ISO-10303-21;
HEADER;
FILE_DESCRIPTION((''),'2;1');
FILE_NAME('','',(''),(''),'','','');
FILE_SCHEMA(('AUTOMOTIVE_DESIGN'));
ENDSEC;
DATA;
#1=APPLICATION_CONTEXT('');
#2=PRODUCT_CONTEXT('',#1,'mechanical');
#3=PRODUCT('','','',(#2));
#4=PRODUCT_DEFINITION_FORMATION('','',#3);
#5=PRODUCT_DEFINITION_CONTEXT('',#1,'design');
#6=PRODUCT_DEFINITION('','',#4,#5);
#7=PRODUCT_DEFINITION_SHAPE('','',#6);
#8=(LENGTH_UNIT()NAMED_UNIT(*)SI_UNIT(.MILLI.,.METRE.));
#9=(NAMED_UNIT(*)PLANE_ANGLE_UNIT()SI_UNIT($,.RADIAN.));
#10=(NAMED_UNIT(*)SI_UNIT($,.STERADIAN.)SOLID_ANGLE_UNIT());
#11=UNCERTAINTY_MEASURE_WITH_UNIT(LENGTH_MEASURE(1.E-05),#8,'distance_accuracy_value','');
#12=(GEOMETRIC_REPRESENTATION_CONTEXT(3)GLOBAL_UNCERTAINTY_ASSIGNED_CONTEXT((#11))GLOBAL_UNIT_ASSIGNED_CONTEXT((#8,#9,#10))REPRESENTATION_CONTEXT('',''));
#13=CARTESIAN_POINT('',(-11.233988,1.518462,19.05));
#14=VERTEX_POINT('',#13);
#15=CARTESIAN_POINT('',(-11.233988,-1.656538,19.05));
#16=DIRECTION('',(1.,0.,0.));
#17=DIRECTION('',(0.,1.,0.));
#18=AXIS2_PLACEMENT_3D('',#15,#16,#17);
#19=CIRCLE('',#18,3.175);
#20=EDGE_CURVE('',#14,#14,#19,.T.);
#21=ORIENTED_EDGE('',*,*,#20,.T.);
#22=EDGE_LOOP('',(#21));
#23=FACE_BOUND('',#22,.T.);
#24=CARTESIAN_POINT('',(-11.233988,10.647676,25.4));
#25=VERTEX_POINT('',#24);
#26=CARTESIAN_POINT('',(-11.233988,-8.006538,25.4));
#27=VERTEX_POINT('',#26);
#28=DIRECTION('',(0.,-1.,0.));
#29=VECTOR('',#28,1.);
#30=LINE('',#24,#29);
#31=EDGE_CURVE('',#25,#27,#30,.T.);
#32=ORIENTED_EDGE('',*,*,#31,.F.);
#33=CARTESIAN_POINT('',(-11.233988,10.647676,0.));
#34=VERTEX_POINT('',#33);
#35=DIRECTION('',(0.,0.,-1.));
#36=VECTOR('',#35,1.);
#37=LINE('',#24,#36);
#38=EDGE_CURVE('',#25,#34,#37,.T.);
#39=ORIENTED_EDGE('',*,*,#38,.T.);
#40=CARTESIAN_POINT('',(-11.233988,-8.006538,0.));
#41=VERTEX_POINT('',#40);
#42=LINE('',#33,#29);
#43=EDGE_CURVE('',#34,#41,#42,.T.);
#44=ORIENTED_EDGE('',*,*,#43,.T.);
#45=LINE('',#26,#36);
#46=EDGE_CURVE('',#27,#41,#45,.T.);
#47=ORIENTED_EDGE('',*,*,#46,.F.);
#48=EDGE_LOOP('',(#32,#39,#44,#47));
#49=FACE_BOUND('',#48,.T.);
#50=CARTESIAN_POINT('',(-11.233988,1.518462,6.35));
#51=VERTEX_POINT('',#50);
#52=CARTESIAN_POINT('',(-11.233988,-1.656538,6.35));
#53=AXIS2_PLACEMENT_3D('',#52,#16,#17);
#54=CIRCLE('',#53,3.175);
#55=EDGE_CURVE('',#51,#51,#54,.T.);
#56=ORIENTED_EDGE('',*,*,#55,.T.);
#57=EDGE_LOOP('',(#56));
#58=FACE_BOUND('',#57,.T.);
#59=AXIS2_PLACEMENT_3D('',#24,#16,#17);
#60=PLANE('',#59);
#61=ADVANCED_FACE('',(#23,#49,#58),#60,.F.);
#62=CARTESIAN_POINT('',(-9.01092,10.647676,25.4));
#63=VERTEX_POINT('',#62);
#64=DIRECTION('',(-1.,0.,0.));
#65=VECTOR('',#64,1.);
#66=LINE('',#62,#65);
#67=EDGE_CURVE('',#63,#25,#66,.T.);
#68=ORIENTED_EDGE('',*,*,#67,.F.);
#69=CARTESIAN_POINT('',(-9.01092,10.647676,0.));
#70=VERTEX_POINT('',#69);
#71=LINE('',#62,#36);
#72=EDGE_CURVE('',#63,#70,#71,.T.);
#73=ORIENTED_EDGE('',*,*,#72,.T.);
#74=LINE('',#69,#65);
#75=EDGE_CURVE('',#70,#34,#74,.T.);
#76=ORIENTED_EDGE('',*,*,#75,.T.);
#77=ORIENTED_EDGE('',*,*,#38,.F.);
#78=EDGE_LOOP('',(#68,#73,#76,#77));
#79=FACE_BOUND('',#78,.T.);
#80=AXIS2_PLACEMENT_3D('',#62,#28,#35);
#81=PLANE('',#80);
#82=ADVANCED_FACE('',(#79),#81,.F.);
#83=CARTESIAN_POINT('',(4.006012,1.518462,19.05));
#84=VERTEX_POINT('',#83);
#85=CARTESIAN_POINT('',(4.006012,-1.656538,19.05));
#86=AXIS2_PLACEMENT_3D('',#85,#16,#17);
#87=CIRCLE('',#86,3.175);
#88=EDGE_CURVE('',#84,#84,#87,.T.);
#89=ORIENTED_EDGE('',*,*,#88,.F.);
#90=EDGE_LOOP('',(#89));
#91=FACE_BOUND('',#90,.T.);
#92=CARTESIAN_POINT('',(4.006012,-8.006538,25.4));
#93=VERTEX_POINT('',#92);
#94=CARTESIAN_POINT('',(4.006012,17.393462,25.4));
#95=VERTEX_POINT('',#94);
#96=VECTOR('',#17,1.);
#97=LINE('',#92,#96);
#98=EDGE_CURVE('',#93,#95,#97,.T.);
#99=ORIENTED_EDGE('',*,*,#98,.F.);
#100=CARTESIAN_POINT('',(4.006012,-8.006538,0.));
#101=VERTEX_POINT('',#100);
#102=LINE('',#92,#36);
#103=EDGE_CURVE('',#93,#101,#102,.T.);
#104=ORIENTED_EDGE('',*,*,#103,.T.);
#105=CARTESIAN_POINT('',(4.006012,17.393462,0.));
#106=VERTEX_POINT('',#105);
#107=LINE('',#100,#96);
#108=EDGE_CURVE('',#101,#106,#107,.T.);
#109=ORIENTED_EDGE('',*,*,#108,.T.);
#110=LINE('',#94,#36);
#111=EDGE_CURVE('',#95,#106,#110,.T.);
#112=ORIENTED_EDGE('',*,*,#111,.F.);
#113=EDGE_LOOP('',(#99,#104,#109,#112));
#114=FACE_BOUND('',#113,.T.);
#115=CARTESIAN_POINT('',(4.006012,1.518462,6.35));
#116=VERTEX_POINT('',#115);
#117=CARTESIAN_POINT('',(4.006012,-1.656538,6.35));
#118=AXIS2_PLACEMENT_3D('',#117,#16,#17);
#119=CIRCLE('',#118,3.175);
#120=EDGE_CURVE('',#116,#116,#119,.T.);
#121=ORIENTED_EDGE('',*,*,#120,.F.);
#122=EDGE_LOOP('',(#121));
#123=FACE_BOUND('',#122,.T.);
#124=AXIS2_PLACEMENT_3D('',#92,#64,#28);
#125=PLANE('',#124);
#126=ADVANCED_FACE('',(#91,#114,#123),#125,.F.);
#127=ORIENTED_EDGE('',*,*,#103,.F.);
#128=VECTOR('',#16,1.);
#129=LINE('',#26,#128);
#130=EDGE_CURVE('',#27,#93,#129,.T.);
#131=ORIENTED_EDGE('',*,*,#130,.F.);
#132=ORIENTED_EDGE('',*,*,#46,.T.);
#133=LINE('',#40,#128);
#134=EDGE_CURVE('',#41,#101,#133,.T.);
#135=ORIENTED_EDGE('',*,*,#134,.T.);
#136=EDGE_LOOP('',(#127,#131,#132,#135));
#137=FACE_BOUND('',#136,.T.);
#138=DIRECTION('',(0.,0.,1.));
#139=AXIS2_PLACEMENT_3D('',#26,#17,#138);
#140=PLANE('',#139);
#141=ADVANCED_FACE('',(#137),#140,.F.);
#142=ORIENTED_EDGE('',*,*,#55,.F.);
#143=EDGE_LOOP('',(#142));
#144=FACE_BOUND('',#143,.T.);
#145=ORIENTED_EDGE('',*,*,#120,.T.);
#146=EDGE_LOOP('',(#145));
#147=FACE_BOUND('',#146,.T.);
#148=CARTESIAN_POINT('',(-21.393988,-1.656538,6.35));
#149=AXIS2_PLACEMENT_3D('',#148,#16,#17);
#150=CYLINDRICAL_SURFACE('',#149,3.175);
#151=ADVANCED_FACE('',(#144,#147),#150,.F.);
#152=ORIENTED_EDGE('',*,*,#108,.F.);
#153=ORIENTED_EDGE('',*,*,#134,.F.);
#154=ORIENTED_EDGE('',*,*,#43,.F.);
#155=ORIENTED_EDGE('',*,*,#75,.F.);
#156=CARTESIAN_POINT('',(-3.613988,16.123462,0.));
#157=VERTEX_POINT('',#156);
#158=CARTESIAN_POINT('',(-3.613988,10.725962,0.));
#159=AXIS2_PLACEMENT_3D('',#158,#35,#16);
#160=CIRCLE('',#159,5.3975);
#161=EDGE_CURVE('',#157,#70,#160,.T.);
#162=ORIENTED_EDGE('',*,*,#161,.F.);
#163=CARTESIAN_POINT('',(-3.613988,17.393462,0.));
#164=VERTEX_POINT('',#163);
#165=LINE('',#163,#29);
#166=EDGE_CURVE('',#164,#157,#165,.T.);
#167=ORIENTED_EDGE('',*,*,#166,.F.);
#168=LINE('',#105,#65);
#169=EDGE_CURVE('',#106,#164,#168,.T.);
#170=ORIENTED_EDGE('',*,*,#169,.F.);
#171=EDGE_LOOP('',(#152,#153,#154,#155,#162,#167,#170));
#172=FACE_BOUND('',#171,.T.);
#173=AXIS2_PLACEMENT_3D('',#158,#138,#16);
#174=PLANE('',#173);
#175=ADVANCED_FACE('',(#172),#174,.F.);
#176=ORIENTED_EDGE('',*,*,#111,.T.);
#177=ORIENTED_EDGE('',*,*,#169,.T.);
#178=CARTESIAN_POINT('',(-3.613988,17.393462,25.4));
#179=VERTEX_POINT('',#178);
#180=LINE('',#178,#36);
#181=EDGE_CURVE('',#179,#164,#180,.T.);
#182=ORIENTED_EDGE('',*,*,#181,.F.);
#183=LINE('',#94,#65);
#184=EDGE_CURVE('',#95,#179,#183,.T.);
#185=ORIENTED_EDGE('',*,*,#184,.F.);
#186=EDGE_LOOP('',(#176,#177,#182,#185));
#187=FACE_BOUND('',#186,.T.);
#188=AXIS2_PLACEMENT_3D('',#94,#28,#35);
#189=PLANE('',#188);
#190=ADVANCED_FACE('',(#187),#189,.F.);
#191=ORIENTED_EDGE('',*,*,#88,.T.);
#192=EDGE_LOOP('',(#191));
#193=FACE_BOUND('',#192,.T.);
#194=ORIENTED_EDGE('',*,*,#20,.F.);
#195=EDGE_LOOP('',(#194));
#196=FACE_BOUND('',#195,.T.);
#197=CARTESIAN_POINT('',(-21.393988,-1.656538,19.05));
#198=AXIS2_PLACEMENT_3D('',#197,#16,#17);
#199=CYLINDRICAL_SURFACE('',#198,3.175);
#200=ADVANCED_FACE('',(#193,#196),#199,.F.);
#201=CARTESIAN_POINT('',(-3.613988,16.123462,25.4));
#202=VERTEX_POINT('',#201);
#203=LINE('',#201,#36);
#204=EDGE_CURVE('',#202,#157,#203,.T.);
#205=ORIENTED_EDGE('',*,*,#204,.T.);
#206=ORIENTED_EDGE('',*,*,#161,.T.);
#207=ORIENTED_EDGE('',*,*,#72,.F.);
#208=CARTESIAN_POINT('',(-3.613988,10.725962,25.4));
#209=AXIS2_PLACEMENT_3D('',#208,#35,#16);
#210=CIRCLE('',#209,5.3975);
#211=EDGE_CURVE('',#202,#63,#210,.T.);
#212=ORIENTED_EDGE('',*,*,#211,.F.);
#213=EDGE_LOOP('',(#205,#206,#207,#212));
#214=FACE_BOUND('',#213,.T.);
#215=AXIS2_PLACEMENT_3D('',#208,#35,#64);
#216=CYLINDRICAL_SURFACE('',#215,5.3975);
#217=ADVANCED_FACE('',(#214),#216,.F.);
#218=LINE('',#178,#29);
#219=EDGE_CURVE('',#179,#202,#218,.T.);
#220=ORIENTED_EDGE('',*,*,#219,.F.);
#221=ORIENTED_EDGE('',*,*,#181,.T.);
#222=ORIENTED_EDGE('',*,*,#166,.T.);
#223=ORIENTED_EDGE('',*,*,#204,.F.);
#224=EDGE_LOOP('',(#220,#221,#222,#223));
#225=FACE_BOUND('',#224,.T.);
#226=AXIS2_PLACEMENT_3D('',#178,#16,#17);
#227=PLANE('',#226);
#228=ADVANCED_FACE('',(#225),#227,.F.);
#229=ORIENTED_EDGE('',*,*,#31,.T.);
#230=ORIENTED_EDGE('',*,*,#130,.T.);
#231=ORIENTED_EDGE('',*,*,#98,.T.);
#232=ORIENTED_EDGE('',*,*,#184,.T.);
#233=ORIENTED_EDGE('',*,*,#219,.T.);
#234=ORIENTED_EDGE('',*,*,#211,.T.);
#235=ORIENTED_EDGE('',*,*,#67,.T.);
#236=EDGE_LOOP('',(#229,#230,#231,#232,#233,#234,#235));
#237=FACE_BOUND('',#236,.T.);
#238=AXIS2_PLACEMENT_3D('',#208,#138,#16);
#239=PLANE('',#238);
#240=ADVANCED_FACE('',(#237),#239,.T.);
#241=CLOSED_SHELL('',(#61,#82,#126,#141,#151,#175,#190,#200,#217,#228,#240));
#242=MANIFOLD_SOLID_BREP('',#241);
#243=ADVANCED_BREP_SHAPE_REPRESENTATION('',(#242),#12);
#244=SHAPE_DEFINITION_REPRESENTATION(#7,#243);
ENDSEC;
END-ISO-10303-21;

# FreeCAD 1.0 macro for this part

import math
import FreeCAD as App
import Part
import Sketcher
from FreeCAD import Vector
Q = App.Units.Quantity

doc = App.newDocument("Part")
body = doc.addObject("PartDesign::Body", "Body")

sketch1 = body.newObject("Sketcher::SketchObject", "Sketch")
sketch1.AttachmentSupport = (doc.getObject("XY_Plane"), [""])
sketch1.MapMode = "FlatFace"
sketch1.addGeometry([
    Part.LineSegment(Vector(-9.01092, 10.647676, 0), Vector(-11.233988, 10.647676, 0)),
    Part.LineSegment(Vector(-11.233988, 10.647676, 0), Vector(-11.233988, -8.006538, 0)),
    Part.LineSegment(Vector(-11.233988, -8.006538, 0), Vector(4.006012, -8.006538, 0)),
    Part.LineSegment(Vector(4.006012, -8.006538, 0), Vector(4.006012, 17.393462, 0)),
    Part.LineSegment(Vector(4.006012, 17.393462, 0), Vector(-3.613988, 17.393462, 0)),
    Part.LineSegment(Vector(-3.613988, 17.393462, 0), Vector(-3.613988, 16.123462, 0)),
    Part.ArcOfCircle(Part.Circle(Vector(-3.613988, 10.725962, 0), Vector(0, 0, 1), 5.3975), math.radians(-179.16894), math.radians(90)),
], False)
sketch1.addConstraint([
    Sketcher.Constraint("Coincident", 0, 2, 1, 1),
    Sketcher.Constraint("Coincident", 1, 2, 2, 1),
    Sketcher.Constraint("Coincident", 2, 2, 3, 1),
    Sketcher.Constraint("Coincident", 3, 2, 4, 1),
    Sketcher.Constraint("Coincident", 4, 2, 5, 1),
    Sketcher.Constraint("Coincident", 5, 2, 6, 2),
    Sketcher.Constraint("Coincident", 6, 1, 0, 1),
    Sketcher.Constraint("Horizontal", 0),
    Sketcher.Constraint("Vertical", 1),
    Sketcher.Constraint("Horizontal", 2),
    Sketcher.Constraint("Vertical", 3),
    Sketcher.Constraint("Horizontal", 4),
    Sketcher.Constraint("Vertical", 5),
    Sketcher.Constraint("Vertical", 6, 3, 4, 2),
    Sketcher.Constraint("DistanceY", 3, 1, 3, 2, Q("1 in")),
    Sketcher.Constraint("DistanceX", 2, 1, 2, 2, Q("0.6 in")),
    Sketcher.Constraint("DistanceX", 4, 2, 4, 1, Q("0.3 in")),
    Sketcher.Constraint("DistanceY", 5, 2, 5, 1, Q("0.05 in")),
    Sketcher.Constraint("Radius", 6, Q("0.2125 in")),
    Sketcher.Constraint("DistanceY", -1, 1, 0, 2, Q("0.4191998 in")),
    Sketcher.Constraint("DistanceX", 0, 2, 0, 1, Q("2.223068 mm")),
    Sketcher.Constraint("DistanceX", 6, 1, -1, 1, Q("9.01092 mm")),
])
pad1 = body.newObject("PartDesign::Pad", "Pad")
pad1.Profile = sketch1
pad1.Length = Q("1 in")

sketch2 = body.newObject("Sketcher::SketchObject", "Sketch001")
sketch2.AttachmentSupport = (doc.getObject("YZ_Plane"), [""])
sketch2.MapMode = "FlatFace"
sketch2.AttachmentOffset = App.Placement(Vector(0, 0, 4.006012), App.Rotation())
sketch2.addGeometry([
    Part.Circle(Vector(-1.656538, 19.05, 0), Vector(0, 0, 1), 3.175),
    Part.Circle(Vector(-1.656538, 6.35, 0), Vector(0, 0, 1), 3.175),
], False)
sketch2.addConstraint([
    Sketcher.Constraint("Equal", 0, 1),
    Sketcher.Constraint("Vertical", 0, 3, 1, 3),
    Sketcher.Constraint("Diameter", 0, Q("0.25 in")),
    Sketcher.Constraint("DistanceY", 1, 3, 0, 3, Q("0.5 in")),
    Sketcher.Constraint("DistanceY", -1, 1, 0, 3, Q("0.75 in")),
    Sketcher.Constraint("DistanceX", 0, 3, -1, 1, Q("1.656538 mm")),
])
pocket1 = body.newObject("PartDesign::Pocket", "Pocket")
pocket1.Profile = sketch2
pocket1.Length = Q("1 in")

doc.recompute()
